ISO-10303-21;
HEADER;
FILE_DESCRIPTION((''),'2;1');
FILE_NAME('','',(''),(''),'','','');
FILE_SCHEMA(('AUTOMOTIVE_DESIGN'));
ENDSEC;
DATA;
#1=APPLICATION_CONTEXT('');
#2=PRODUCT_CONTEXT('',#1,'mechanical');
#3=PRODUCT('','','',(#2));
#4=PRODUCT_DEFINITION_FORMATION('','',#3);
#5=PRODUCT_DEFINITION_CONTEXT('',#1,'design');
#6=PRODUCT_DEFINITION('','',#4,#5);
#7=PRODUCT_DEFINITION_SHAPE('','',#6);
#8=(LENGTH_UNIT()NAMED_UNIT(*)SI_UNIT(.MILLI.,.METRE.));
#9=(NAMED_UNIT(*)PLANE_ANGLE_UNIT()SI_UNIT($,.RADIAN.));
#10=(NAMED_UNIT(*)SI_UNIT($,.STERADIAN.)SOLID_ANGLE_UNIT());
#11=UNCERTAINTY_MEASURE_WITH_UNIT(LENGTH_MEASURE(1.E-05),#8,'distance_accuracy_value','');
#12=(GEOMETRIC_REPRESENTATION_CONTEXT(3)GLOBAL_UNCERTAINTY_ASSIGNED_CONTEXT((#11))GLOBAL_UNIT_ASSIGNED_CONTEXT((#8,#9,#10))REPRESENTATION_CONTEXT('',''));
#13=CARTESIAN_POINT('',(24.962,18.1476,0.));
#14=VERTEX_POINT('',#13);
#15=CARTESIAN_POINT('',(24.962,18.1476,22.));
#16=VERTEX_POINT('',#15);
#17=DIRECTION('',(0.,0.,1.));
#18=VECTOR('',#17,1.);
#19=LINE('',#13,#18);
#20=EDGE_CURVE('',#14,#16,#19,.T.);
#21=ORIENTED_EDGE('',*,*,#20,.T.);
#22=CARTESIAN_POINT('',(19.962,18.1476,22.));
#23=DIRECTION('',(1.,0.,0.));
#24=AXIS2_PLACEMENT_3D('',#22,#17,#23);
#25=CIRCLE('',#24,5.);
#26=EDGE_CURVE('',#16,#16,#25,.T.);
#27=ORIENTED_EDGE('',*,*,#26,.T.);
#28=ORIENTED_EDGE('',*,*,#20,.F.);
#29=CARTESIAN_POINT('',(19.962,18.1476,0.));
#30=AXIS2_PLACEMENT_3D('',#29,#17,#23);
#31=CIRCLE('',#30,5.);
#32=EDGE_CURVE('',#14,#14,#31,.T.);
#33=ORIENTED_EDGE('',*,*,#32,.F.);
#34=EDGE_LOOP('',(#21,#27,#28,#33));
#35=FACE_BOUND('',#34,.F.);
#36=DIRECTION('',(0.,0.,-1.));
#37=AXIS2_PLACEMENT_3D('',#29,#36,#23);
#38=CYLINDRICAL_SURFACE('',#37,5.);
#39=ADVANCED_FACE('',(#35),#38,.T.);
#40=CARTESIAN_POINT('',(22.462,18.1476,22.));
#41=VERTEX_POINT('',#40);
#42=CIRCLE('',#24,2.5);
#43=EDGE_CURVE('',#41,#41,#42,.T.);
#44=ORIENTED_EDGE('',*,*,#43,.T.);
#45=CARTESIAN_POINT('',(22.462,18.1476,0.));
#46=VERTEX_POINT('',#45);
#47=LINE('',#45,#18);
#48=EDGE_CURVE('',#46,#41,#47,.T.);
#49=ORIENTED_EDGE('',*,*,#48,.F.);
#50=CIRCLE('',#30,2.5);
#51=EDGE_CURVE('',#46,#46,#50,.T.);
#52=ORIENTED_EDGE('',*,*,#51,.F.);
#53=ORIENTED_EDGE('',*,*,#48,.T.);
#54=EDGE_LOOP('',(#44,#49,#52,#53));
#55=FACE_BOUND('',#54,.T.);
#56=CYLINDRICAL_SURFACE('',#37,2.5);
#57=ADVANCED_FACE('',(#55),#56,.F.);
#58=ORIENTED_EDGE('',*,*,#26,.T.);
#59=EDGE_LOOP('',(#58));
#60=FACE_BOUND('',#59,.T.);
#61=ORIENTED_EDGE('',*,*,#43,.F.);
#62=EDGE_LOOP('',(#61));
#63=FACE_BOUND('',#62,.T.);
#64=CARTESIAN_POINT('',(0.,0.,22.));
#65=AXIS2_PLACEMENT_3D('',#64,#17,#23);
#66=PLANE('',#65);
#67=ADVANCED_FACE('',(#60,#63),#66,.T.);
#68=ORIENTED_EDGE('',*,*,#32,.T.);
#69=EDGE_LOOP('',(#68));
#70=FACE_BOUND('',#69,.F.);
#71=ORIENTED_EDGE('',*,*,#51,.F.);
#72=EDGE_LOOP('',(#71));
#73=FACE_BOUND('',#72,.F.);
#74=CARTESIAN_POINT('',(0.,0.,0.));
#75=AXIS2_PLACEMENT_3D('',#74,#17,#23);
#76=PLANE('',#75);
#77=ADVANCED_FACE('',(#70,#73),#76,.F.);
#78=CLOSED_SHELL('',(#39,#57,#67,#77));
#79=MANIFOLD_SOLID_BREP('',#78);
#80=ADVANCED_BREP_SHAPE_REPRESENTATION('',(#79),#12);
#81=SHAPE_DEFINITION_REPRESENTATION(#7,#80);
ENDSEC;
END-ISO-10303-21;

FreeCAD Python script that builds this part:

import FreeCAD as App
import Part
import Sketcher
from FreeCAD import Vector
Q = App.Units.Quantity

doc = App.newDocument("Part")
params = doc.addObject("Spreadsheet::Sheet", "Params")
for row, (alias, value) in enumerate([
    ("sketch1_diameter", "10 mm"),
    ("sketch1_diameter2", "5 mm"),
    ("pad1_length", "22 mm"),
], start=1):
    params.set(f"A{row}", alias)
    params.set(f"B{row}", "=" + value)
    params.setAlias(f"B{row}", alias)

body = doc.addObject("PartDesign::Body", "Body")

# Sketch on XY plane
sketch1 = body.newObject("Sketcher::SketchObject", "Sketch")
sketch1.AttachmentSupport = (doc.getObject("XY_Plane"), [""])
sketch1.MapMode = "FlatFace"
sketch1.addGeometry(Part.Circle(Vector(20, 18.1, 0), Vector(0, 0, 1), 5), False)
sketch1.addGeometry(Part.Circle(Vector(20, 18.1, 0), Vector(0, 0, 1), 2.5), False)
sketch1.addConstraint(Sketcher.Constraint("Coincident", 1, 3, 0, 3))
sketch1.addConstraint(Sketcher.Constraint("Diameter", 0, Q("10 mm")))
sketch1.addConstraint(Sketcher.Constraint("Diameter", 1, Q("5 mm")))
sketch1.addConstraint(Sketcher.Constraint("DistanceX", -1, 1, 0, 3, Q("19.962 mm")))
sketch1.addConstraint(Sketcher.Constraint("DistanceY", -1, 1, 0, 3, Q("18.1476 mm")))
sketch1.setExpression("Constraints[1]", "Params.sketch1_diameter")
sketch1.setExpression("Constraints[2]", "Params.sketch1_diameter2")
pad1 = body.newObject("PartDesign::Pad", "Pad")
pad1.Profile = sketch1
pad1.setExpression("Length", "Params.pad1_length")

doc.recompute()
